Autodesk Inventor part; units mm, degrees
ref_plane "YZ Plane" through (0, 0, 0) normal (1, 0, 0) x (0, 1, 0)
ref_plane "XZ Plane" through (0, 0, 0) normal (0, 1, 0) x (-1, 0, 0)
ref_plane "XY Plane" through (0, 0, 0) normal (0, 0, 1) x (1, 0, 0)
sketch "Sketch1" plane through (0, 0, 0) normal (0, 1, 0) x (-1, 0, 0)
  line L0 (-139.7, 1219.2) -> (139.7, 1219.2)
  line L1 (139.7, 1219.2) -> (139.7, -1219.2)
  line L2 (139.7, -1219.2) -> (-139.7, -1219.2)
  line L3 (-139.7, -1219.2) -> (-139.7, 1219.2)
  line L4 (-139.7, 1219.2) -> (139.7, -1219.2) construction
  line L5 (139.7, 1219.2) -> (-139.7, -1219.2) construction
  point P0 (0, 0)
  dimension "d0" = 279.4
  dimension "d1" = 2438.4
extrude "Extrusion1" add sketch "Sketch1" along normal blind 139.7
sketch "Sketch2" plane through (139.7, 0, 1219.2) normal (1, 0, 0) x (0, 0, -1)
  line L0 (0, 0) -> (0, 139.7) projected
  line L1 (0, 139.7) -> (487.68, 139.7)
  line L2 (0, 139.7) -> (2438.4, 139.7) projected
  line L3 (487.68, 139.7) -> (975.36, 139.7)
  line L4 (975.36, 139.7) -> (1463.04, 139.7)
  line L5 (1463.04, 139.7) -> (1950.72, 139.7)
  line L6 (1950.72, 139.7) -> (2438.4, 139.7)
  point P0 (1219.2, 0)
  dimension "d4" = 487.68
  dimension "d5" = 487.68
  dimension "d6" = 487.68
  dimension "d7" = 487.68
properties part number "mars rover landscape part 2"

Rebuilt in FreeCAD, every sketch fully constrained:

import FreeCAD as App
import Part
import Sketcher

V = App.Vector
Q = App.Units.Quantity

doc = App.newDocument("Part")
body = doc.addObject("PartDesign::Body", "Body")

sketch1 = doc.addObject("Sketcher::SketchObject", "Sketch")
body.addObject(sketch1)
sketch1.AttachmentSupport = (doc.XZ_Plane, [""])
sketch1.MapMode = "FlatFace"
sketch1.addGeometry([
    Part.LineSegment(V(-139.7, 1219.2, 0), V(139.7, 1219.2, 0)),
    Part.LineSegment(V(139.7, 1219.2, 0), V(139.7, -1219.2, 0)),
    Part.LineSegment(V(139.7, -1219.2, 0), V(-139.7, -1219.2, 0)),
    Part.LineSegment(V(-139.7, -1219.2, 0), V(-139.7, 1219.2, 0)),
], False)
sketch1.addConstraint([
    Sketcher.Constraint("Coincident", 0, 2, 1, 1),
    Sketcher.Constraint("Coincident", 1, 2, 2, 1),
    Sketcher.Constraint("Coincident", 2, 2, 3, 1),
    Sketcher.Constraint("Coincident", 3, 2, 0, 1),
    Sketcher.Constraint("Horizontal", 0),
    Sketcher.Constraint("Vertical", 1),
    Sketcher.Constraint("Horizontal", 2),
    Sketcher.Constraint("Vertical", 3),
    Sketcher.Constraint("Symmetric", 0, 2, 2, 2, -1, 1),
    Sketcher.Constraint("DistanceX", 0, 1, 0, 2, Q("11 in")),
    Sketcher.Constraint("DistanceY", 1, 2, 1, 1, Q("96 in")),
])
pad1 = doc.addObject("PartDesign::Pad", "Pad")
body.addObject(pad1)
pad1.Profile = sketch1
pad1.Length = Q("5.5 in")
pad1.Reversed = True

doc.recompute()
